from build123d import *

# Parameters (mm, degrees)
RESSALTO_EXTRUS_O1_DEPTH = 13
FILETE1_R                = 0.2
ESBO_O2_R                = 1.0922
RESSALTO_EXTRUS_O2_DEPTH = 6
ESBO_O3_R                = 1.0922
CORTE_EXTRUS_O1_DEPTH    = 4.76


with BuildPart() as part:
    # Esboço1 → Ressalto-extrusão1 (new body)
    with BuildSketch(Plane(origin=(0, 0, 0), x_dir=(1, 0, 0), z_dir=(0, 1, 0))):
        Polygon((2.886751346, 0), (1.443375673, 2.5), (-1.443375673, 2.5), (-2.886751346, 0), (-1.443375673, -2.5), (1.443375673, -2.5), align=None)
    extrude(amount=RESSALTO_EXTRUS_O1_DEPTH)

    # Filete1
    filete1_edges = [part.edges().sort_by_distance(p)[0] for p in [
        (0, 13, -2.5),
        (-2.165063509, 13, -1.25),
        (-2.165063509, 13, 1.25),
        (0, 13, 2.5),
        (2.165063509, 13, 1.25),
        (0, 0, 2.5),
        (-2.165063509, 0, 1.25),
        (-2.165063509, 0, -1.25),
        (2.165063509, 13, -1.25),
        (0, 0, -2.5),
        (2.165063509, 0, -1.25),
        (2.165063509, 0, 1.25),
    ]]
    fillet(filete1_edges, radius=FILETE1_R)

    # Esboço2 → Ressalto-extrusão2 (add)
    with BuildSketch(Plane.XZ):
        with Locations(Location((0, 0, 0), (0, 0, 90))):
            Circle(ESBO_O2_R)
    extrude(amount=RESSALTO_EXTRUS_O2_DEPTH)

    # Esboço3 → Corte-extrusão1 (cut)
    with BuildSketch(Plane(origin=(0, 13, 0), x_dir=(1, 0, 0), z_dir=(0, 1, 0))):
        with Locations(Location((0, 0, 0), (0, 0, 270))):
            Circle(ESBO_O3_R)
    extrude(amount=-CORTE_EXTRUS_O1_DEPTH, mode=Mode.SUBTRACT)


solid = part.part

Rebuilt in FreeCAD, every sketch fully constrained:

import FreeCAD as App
import Part
import Sketcher
Q = App.Units.Quantity


def edges_at(feature, points):
    """Names of the edges that pass closest to the given points."""
    edges = feature.Shape.Edges
    near = lambda p: min(range(len(edges)), key=lambda i: edges[i].distToShape(Part.Vertex(*p))[0])
    return sorted({f"Edge{near(p) + 1}" for p in points})


def add_polygon(sketch, points):
    """Adds a closed chain of lines whose ends are joined by coincident constraints."""
    first, n = sketch.GeometryCount, len(points)
    for a, b in zip(points, points[1:] + points[:1]):
        sketch.addGeometry(Part.LineSegment(App.Vector(*a, 0), App.Vector(*b, 0)), False)
    for i in range(n):
        sketch.addConstraint(Sketcher.Constraint("Coincident", first + i, 2, first + (i + 1) % n, 1))

doc = App.newDocument("Part")
body = doc.addObject("PartDesign::Body", "Body")

# Sketch on XZ plane
sketch1 = body.newObject("Sketcher::SketchObject", "Sketch")
sketch1.AttachmentSupport = (doc.getObject("XZ_Plane"), [""])
sketch1.MapMode = "FlatFace"
add_polygon(sketch1, [(2.886751, 0), (1.443376, -2.5), (-1.443376, -2.5), (-2.886751, 0), (-1.443376, 2.5), (1.443376, 2.5)])  # lines 0-5
sketch1.addConstraint([
    Sketcher.Constraint("Horizontal", 1),
    Sketcher.Constraint("Horizontal", 4),
    Sketcher.Constraint("Symmetric", 0, 2, 3, 2, -1, 1),
    Sketcher.Constraint("Symmetric", 2, 2, 5, 2, -1, 1),
    Sketcher.Constraint("PointOnObject", 2, 2, -1),
    Sketcher.Constraint("Parallel", 2, 5),
    Sketcher.Constraint("Vertical", 1, 2, 3, 2),
    Sketcher.Constraint("Angle", 0, Q("-120 deg")),
    Sketcher.Constraint("DistanceY", 1, 2, 3, 2, 5.0),
    Sketcher.Constraint("DistanceX", 1, 2, 1, 1, 2.886751),
])
pad1 = body.newObject("PartDesign::Pad", "Pad")
pad1.Profile = sketch1
pad1.Length = 13
pad1.Reversed = True
doc.recompute()

fillet = body.newObject("PartDesign::Fillet", "Fillet")
fillet.Base = (pad1, edges_at(pad1, [
    (0, 13, -2.5),
    (-2.165, 13, -1.25),
    (-2.165, 13, 1.25),
    (0, 13, 2.5),
    (2.165, 13, 1.25),
    (0, 0, 2.5),
    (-2.165, 0, 1.25),
    (-2.165, 0, -1.25),
    (2.165, 13, -1.25),
    (0, 0, -2.5),
    (2.165, 0, -1.25),
    (2.165, 0, 1.25),
]))
fillet.Radius = 0.2

# Sketch on XZ plane
sketch2 = body.newObject("Sketcher::SketchObject", "Sketch001")
sketch2.AttachmentSupport = (doc.getObject("XZ_Plane"), [""])
sketch2.MapMode = "FlatFace"
sketch2.addGeometry(Part.Circle(App.Vector(0, 0, 0), App.Vector(0, 0, 1), 1.0922), False)
sketch2.addConstraint([
    Sketcher.Constraint("Coincident", 0, 3, -1, 1),
    Sketcher.Constraint("Diameter", 0, 2.1844),
])
pad2 = body.newObject("PartDesign::Pad", "Pad001")
pad2.Profile = sketch2
pad2.Length = 6

# Sketch on XZ plane
sketch3 = body.newObject("Sketcher::SketchObject", "Sketch002")
sketch3.AttachmentSupport = (doc.getObject("XZ_Plane"), [""])
sketch3.MapMode = "FlatFace"
sketch3.AttachmentOffset = App.Placement(App.Vector(0, 0, -13), App.Rotation())
sketch3.addGeometry(Part.Circle(App.Vector(0, 0, 0), App.Vector(0, 0, 1), 1.0922), False)
sketch3.addConstraint([
    Sketcher.Constraint("Coincident", 0, 3, -1, 1),
    Sketcher.Constraint("Diameter", 0, 2.1844),
])
pocket1 = body.newObject("PartDesign::Pocket", "Pocket")
pocket1.Profile = sketch3
pocket1.Length = 4.76
pocket1.Reversed = True

doc.recompute()
